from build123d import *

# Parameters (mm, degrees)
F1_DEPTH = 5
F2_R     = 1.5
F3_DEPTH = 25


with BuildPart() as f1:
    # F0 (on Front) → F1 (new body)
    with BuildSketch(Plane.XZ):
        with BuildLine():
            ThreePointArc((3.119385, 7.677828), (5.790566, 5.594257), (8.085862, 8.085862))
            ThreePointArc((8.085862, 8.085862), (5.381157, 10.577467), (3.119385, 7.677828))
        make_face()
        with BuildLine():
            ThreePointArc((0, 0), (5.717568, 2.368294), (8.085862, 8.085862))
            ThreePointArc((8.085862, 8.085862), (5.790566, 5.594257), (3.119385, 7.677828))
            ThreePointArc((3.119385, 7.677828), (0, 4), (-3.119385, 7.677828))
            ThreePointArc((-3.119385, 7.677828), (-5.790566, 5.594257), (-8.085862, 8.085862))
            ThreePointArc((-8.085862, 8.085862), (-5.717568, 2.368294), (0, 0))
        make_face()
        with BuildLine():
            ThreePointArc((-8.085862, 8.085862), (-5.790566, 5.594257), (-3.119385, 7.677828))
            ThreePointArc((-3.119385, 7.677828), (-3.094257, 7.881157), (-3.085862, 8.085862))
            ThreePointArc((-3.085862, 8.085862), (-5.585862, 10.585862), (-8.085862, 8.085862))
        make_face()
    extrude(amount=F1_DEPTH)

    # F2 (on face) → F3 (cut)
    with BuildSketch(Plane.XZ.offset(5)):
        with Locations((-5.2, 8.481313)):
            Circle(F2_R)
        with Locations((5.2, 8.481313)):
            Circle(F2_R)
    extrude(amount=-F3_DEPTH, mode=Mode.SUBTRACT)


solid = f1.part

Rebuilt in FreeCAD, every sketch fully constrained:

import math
import FreeCAD as App
import Part
import Sketcher
from FreeCAD import Vector

doc = App.newDocument("Part")
body = doc.addObject("PartDesign::Body", "Body")

sketch1 = body.newObject("Sketcher::SketchObject", "Sketch")
sketch1.AttachmentSupport = (doc.getObject("XZ_Plane"), [""])
sketch1.MapMode = "FlatFace"
sketch1.addGeometry([
    Part.ArcOfCircle(Part.Circle(Vector(5.585862, 8.085862, 0), Vector(0, 0, 1), 2.5), math.radians(0.000003), math.radians(189.393471)),
    Part.ArcOfCircle(Part.Circle(Vector(0, 7.161782, 0), Vector(0, 0, 1), 3.161782), math.radians(170.606525), math.radians(369.393475)),
    Part.ArcOfCircle(Part.Circle(Vector(-5.585901, 8.085865, 0), Vector(0, 0, 1), 2.500039), math.radians(-9.393386), math.radians(-0.000058)),
    Part.ArcOfCircle(Part.Circle(Vector(-5.585862, 8.085862, 0), Vector(0, 0, 1), 2.5), math.radians(0), math.radians(180)),
    Part.ArcOfCircle(Part.Circle(Vector(-0.000001, 8.085861, 0), Vector(0, 0, 1), 8.085861), math.radians(179.999996), math.radians(270.000004)),
    Part.ArcOfCircle(Part.Circle(Vector(0.000001, 8.085861, 0), Vector(0, 0, 1), 8.085861), math.radians(-90.000004), math.radians(0.000004)),
], False)
sketch1.addConstraint([
    Sketcher.Constraint("Coincident", 0, 2, 1, 2),
    Sketcher.Constraint("Coincident", 1, 1, 2, 1),
    Sketcher.Constraint("Coincident", 2, 2, 3, 1),
    Sketcher.Constraint("Coincident", 3, 2, 4, 1),
    Sketcher.Constraint("Coincident", 4, 2, 5, 1),
    Sketcher.Constraint("Coincident", 5, 2, 0, 1),
    Sketcher.Constraint("Coincident", 4, 2, -1, 1),
    Sketcher.Constraint("Coincident", 5, 3, 4, 3),
    Sketcher.Constraint("PointOnObject", 1, 3, -2),
    Sketcher.Constraint("PointOnObject", 4, 3, -2),
    Sketcher.Constraint("Radius", 0, 2.5),
    Sketcher.Constraint("Radius", 3, 2.5),
    Sketcher.Constraint("Radius", 2, 2.500039),
    Sketcher.Constraint("Radius", 4, 8.085861),
    Sketcher.Constraint("Radius", 1, 3.161782),
    Sketcher.Constraint("DistanceY", -1, 1, 0, 3, 8.085862),
    Sketcher.Constraint("DistanceY", -1, 1, 1, 1, 7.677828),
    Sketcher.Constraint("DistanceY", 1, 3, 3, 3, 0.92408),
    Sketcher.Constraint("DistanceY", 1, 3, 5, 2, 0.92408),
    Sketcher.Constraint("DistanceX", -1, 1, 0, 2, 3.119385),
    Sketcher.Constraint("DistanceY", -1, 1, 2, 2, 8.085862),
    Sketcher.Constraint("DistanceY", -1, 1, 3, 2, 8.085862),
])
pad1 = body.newObject("PartDesign::Pad", "Pad")
pad1.Profile = sketch1
pad1.Length = 5

sketch2 = body.newObject("Sketcher::SketchObject", "Sketch001")
sketch2.AttachmentSupport = (doc.getObject("XZ_Plane"), [""])
sketch2.MapMode = "FlatFace"
sketch2.AttachmentOffset = App.Placement(Vector(0, 0, 5), App.Rotation())
sketch2.addGeometry([
    Part.Circle(Vector(-5.2, 8.5, 0), Vector(0, 0, 1), 1.5),
    Part.Circle(Vector(5.2, 8.5, 0), Vector(0, 0, 1), 1.5),
], False)
sketch2.addConstraint([
    Sketcher.Constraint("Equal", 0, 1),
    Sketcher.Constraint("Symmetric", 0, 3, 1, 3, -2),
    Sketcher.Constraint("Diameter", 0, 3.0),
    Sketcher.Constraint("DistanceX", 0, 3, -1, 1, 5.2),
    Sketcher.Constraint("DistanceY", -1, 1, 0, 3, 8.481313),
])
pocket1 = body.newObject("PartDesign::Pocket", "Pocket")
pocket1.Profile = sketch2
pocket1.Length = 25

doc.recompute()
